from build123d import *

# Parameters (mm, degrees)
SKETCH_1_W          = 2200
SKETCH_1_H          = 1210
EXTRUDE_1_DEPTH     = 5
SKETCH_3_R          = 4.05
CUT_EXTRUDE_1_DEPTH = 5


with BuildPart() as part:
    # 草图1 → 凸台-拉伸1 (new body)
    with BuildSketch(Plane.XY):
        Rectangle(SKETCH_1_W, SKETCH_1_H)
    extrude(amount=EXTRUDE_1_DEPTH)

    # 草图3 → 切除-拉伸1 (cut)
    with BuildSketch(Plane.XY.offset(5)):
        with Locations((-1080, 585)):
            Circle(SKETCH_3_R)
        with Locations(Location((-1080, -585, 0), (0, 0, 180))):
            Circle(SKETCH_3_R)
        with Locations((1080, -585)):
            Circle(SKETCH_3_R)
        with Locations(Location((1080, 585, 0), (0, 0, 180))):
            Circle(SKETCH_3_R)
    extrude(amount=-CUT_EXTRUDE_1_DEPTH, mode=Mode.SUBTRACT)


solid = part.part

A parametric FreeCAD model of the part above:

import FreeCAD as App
import Part
import Sketcher

V = App.Vector


def add_polygon(sketch, points):
    """Adds a closed chain of lines whose ends are joined by coincident constraints."""
    first, n = sketch.GeometryCount, len(points)
    for a, b in zip(points, points[1:] + points[:1]):
        sketch.addGeometry(Part.LineSegment(App.Vector(*a, 0), App.Vector(*b, 0)), False)
    for i in range(n):
        sketch.addConstraint(Sketcher.Constraint("Coincident", first + i, 2, first + (i + 1) % n, 1))

doc = App.newDocument("Part")
body = doc.addObject("PartDesign::Body", "Body")

# Sketch on XY plane
sketch1 = body.newObject("Sketcher::SketchObject", "Sketch")
sketch1.AttachmentSupport = (doc.getObject("XY_Plane"), [""])
sketch1.MapMode = "FlatFace"
add_polygon(sketch1, [(-1100, 605), (-1100, -605), (1100, -605), (1100, 605)])  # lines 0-3
sketch1.addConstraint(Sketcher.Constraint("Vertical", 0))
sketch1.addConstraint(Sketcher.Constraint("Horizontal", 1))
sketch1.addConstraint(Sketcher.Constraint("Vertical", 2))
sketch1.addConstraint(Sketcher.Constraint("Horizontal", 3))
sketch1.addConstraint(Sketcher.Constraint("Symmetric", 0, 2, 2, 2, -1, 1))
sketch1.addConstraint(Sketcher.Constraint("DistanceX", 1, 1, 1, 2, 2200.0))
sketch1.addConstraint(Sketcher.Constraint("DistanceY", 0, 2, 0, 1, 1210.0))
pad1 = body.newObject("PartDesign::Pad", "Pad")
pad1.Profile = sketch1
pad1.Length = 5

# Sketch on XY plane
sketch2 = body.newObject("Sketcher::SketchObject", "Sketch001")
sketch2.AttachmentSupport = (doc.getObject("XY_Plane"), [""])
sketch2.MapMode = "FlatFace"
sketch2.AttachmentOffset = App.Placement(V(0, 0, 5), App.Rotation())
sketch2.addGeometry(Part.Circle(V(-1080, 585, 0), V(0, 0, 1), 4), False)
sketch2.addGeometry(Part.Circle(V(-1080, -585, 0), V(0, 0, 1), 4), False)
sketch2.addGeometry(Part.Circle(V(1080, -585, 0), V(0, 0, 1), 4), False)
sketch2.addGeometry(Part.Circle(V(1080, 585, 0), V(0, 0, 1), 4), False)
sketch2.addConstraint(Sketcher.Constraint("Equal", 0, 1))
sketch2.addConstraint(Sketcher.Constraint("Equal", 1, 2))
sketch2.addConstraint(Sketcher.Constraint("Equal", 2, 3))
sketch2.addConstraint(Sketcher.Constraint("Symmetric", 0, 3, 2, 3, -1, 1))
sketch2.addConstraint(Sketcher.Constraint("Symmetric", 1, 3, 3, 3, -1, 1))
sketch2.addConstraint(Sketcher.Constraint("Symmetric", 1, 3, 2, 3, -2))
sketch2.addConstraint(Sketcher.Constraint("Diameter", 0, 8.1))
sketch2.addConstraint(Sketcher.Constraint("DistanceX", 0, 3, -1, 1, 1080.0))
sketch2.addConstraint(Sketcher.Constraint("DistanceY", -1, 1, 0, 3, 585.0))
pocket1 = body.newObject("PartDesign::Pocket", "Pocket")
pocket1.Profile = sketch2
pocket1.Length = 5

doc.recompute()
